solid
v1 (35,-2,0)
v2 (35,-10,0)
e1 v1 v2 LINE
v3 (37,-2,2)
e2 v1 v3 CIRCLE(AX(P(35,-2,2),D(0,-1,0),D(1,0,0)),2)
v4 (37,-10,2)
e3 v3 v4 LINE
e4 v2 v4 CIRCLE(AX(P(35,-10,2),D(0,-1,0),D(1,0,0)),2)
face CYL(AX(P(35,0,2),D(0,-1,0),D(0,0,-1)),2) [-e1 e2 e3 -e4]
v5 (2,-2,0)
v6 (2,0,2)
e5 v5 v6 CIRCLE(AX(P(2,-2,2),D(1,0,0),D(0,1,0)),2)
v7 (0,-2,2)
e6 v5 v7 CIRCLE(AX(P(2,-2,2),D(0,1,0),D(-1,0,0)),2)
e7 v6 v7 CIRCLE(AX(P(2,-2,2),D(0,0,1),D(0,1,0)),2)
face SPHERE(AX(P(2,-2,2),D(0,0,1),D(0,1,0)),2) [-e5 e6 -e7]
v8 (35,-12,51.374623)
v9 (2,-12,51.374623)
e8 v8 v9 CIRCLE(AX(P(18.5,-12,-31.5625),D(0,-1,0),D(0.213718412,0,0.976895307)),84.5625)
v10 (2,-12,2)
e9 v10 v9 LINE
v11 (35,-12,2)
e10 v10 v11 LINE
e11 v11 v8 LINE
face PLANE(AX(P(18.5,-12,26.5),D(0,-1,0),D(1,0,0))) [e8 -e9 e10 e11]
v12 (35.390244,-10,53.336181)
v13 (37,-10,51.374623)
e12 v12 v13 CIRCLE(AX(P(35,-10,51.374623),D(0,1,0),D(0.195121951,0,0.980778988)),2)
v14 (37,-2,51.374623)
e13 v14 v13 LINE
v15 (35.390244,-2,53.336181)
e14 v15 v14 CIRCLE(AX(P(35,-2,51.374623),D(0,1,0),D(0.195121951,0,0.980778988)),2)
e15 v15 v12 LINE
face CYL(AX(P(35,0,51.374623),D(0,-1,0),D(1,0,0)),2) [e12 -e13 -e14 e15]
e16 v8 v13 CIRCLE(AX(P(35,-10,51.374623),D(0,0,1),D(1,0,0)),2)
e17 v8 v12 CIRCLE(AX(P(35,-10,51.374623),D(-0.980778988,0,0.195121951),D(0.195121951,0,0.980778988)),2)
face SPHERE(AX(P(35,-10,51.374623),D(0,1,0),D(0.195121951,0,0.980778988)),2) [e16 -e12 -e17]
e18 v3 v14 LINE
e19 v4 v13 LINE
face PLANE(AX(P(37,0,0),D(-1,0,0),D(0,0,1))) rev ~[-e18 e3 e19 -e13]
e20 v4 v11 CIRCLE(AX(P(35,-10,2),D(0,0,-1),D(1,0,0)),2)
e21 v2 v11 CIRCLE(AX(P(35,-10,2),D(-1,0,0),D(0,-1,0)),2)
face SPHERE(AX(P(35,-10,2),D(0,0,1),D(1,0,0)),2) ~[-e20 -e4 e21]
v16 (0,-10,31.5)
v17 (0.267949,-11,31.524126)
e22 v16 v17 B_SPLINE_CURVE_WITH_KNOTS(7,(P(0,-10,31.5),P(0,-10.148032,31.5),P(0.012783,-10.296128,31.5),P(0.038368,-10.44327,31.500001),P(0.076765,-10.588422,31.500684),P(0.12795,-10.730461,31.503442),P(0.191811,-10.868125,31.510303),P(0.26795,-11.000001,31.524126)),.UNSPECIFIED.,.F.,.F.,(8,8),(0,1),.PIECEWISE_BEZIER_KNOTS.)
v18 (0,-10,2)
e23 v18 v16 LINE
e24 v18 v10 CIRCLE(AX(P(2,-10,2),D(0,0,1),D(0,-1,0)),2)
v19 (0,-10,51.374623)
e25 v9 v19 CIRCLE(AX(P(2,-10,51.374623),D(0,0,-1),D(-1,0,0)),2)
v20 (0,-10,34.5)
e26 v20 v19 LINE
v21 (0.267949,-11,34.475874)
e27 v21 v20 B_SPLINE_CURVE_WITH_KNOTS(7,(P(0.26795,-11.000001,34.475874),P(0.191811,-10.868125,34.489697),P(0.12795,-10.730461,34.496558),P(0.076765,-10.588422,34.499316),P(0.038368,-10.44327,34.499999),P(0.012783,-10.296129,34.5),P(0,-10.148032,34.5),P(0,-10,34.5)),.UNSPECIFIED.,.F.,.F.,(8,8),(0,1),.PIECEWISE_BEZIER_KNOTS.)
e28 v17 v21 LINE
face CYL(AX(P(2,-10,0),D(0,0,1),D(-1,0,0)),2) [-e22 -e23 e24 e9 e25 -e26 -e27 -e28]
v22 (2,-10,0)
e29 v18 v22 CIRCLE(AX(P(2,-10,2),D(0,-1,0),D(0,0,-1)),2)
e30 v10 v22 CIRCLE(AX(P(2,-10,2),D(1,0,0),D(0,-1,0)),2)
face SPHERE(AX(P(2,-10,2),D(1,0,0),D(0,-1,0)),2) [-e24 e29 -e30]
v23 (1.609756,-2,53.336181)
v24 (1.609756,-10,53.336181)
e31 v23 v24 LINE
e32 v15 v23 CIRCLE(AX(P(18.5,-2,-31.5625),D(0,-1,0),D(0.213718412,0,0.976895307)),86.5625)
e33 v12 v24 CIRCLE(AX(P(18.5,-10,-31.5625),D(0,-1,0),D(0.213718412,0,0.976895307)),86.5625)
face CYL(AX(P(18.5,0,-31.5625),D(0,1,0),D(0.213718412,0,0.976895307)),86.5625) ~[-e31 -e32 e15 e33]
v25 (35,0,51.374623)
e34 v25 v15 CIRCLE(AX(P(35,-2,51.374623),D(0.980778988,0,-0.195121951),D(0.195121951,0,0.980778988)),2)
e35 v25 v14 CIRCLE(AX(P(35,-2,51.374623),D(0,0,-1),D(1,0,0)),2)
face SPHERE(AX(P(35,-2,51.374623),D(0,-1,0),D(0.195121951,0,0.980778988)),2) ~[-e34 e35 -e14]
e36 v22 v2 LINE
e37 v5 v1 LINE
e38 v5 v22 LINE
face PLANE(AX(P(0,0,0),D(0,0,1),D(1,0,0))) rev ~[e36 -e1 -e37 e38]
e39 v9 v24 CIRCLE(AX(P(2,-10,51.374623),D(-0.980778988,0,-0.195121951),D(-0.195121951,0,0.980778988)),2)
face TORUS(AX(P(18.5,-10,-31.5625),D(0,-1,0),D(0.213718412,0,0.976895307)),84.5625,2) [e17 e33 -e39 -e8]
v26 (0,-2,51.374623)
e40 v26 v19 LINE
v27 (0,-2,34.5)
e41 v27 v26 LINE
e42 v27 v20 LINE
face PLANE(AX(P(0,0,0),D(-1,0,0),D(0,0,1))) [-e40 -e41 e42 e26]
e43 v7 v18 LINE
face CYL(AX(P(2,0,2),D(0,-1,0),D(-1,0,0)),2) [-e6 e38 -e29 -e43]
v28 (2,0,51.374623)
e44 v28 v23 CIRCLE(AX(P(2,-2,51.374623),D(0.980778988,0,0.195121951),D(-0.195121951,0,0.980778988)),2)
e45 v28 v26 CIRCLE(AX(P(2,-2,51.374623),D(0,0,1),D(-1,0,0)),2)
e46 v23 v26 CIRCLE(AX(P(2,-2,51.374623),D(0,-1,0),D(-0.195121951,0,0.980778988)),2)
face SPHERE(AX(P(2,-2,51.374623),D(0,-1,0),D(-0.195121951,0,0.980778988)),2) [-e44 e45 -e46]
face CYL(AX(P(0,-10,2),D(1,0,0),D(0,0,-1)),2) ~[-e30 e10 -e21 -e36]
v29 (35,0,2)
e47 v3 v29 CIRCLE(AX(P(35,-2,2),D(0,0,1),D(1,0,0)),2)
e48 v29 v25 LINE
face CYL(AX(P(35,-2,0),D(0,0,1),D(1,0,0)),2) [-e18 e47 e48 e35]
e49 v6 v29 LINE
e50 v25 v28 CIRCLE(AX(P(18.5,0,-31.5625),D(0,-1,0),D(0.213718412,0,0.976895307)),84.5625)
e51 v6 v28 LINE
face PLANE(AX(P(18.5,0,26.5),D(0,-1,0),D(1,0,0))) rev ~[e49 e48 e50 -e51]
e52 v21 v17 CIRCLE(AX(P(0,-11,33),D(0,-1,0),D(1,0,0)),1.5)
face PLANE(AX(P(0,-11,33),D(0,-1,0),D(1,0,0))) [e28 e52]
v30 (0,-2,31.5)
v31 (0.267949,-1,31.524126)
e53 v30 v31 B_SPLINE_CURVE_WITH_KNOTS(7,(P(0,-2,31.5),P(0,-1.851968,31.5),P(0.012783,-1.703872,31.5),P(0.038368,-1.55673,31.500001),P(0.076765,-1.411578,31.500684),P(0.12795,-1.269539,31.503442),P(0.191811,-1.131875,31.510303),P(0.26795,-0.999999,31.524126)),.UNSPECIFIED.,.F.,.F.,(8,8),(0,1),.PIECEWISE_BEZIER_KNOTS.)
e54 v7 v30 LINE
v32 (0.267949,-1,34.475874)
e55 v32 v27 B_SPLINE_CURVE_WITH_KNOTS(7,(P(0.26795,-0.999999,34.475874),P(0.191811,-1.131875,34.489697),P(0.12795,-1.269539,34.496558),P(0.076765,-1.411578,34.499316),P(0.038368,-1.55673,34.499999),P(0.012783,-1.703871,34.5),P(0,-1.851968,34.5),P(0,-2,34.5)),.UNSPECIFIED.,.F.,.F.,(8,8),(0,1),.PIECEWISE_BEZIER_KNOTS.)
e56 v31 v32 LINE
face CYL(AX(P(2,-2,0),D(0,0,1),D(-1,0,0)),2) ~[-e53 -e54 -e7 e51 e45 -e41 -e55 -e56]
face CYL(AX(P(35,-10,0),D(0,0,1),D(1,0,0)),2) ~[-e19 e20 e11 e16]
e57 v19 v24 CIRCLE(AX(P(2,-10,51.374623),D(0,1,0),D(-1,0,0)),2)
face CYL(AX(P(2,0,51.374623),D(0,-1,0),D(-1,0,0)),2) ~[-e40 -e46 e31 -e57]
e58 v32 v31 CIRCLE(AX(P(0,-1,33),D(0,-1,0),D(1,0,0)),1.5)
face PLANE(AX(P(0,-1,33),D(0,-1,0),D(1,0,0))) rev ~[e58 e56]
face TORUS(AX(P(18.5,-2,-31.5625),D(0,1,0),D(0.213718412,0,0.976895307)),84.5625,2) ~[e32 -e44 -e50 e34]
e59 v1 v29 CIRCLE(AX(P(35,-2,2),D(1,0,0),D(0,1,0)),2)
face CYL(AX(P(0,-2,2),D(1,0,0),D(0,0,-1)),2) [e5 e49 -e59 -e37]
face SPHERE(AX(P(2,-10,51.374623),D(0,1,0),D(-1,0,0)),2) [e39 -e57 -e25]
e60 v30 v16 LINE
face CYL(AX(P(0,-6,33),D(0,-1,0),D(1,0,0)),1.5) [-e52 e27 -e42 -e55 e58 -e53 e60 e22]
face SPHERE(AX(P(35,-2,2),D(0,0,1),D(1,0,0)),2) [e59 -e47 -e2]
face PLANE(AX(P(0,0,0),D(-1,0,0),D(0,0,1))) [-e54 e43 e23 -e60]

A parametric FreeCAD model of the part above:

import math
import FreeCAD as App
import Part
import Sketcher
from FreeCAD import Vector

doc = App.newDocument("Part")
body = doc.addObject("PartDesign::Body", "Body")

# Sketch on XZ plane
sketch1 = doc.addObject("Sketcher::SketchObject", "Sketch")
body.addObject(sketch1)
sketch1.AttachmentSupport = (doc.XZ_Plane, [""])
sketch1.MapMode = "FlatFace"
sketch1.addGeometry(Part.LineSegment(Vector(0, 53, 0), Vector(0, 0, 0)), False)
sketch1.addGeometry(Part.LineSegment(Vector(0, 0, 0), Vector(37, 0, 0)), False)
sketch1.addGeometry(Part.LineSegment(Vector(37, 0, 0), Vector(37, 53, 0)), False)
sketch1.addGeometry(Part.ArcOfCircle(Part.Circle(Vector(18.5, -31.5625, 0), Vector(0, 0, 1), 86.5625), math.radians(77.65965), math.radians(102.34035)), False)
sketch1.addConstraint(Sketcher.Constraint("Coincident", 0, 2, 1, 1))
sketch1.addConstraint(Sketcher.Constraint("Coincident", 1, 2, 2, 1))
sketch1.addConstraint(Sketcher.Constraint("Coincident", 2, 2, 3, 1))
sketch1.addConstraint(Sketcher.Constraint("Coincident", 3, 2, 0, 1))
sketch1.addConstraint(Sketcher.Constraint("Vertical", 0))
sketch1.addConstraint(Sketcher.Constraint("Horizontal", 1))
sketch1.addConstraint(Sketcher.Constraint("Vertical", 2))
sketch1.addConstraint(Sketcher.Constraint("Coincident", 0, 2, -1, 1))
sketch1.addConstraint(Sketcher.Constraint("Horizontal", 2, 2, 3, 2))
sketch1.addConstraint(Sketcher.Constraint("DistanceX", 1, 1, 1, 2, 37.0))
sketch1.addConstraint(Sketcher.Constraint("DistanceY", 0, 2, 0, 1, 53.0))
sketch1.addConstraint(Sketcher.Constraint("Radius", 3, 86.5625))
pad1 = doc.addObject("PartDesign::Pad", "Pad")
body.addObject(pad1)
pad1.Profile = sketch1
pad1.Length = 12
doc.recompute()

fillet = doc.addObject("PartDesign::Fillet", "Fillet")
body.addObject(fillet)
fillet.Base = (pad1, ["Edge1"])
fillet.UseAllEdges = True
fillet.Radius = 2

# Sketch on XZ plane
sketch2 = doc.addObject("Sketcher::SketchObject", "Sketch001")
body.addObject(sketch2)
sketch2.AttachmentSupport = (doc.XZ_Plane, [""])
sketch2.MapMode = "FlatFace"
sketch2.AttachmentOffset = App.Placement(Vector(0, 0, 6), App.Rotation())
sketch2.addGeometry(Part.Circle(Vector(0, 33, 0), Vector(0, 0, 1), 1.5), False)
sketch2.addConstraint(Sketcher.Constraint("PointOnObject", 0, 3, -2))
sketch2.addConstraint(Sketcher.Constraint("Diameter", 0, 3.0))
sketch2.addConstraint(Sketcher.Constraint("DistanceY", -1, 1, 0, 3, 33.0))
pad2 = doc.addObject("PartDesign::Pad", "Pad001")
body.addObject(pad2)
pad2.Profile = sketch2
pad2.Length = 10
pad2.Midplane = True

doc.recompute()
